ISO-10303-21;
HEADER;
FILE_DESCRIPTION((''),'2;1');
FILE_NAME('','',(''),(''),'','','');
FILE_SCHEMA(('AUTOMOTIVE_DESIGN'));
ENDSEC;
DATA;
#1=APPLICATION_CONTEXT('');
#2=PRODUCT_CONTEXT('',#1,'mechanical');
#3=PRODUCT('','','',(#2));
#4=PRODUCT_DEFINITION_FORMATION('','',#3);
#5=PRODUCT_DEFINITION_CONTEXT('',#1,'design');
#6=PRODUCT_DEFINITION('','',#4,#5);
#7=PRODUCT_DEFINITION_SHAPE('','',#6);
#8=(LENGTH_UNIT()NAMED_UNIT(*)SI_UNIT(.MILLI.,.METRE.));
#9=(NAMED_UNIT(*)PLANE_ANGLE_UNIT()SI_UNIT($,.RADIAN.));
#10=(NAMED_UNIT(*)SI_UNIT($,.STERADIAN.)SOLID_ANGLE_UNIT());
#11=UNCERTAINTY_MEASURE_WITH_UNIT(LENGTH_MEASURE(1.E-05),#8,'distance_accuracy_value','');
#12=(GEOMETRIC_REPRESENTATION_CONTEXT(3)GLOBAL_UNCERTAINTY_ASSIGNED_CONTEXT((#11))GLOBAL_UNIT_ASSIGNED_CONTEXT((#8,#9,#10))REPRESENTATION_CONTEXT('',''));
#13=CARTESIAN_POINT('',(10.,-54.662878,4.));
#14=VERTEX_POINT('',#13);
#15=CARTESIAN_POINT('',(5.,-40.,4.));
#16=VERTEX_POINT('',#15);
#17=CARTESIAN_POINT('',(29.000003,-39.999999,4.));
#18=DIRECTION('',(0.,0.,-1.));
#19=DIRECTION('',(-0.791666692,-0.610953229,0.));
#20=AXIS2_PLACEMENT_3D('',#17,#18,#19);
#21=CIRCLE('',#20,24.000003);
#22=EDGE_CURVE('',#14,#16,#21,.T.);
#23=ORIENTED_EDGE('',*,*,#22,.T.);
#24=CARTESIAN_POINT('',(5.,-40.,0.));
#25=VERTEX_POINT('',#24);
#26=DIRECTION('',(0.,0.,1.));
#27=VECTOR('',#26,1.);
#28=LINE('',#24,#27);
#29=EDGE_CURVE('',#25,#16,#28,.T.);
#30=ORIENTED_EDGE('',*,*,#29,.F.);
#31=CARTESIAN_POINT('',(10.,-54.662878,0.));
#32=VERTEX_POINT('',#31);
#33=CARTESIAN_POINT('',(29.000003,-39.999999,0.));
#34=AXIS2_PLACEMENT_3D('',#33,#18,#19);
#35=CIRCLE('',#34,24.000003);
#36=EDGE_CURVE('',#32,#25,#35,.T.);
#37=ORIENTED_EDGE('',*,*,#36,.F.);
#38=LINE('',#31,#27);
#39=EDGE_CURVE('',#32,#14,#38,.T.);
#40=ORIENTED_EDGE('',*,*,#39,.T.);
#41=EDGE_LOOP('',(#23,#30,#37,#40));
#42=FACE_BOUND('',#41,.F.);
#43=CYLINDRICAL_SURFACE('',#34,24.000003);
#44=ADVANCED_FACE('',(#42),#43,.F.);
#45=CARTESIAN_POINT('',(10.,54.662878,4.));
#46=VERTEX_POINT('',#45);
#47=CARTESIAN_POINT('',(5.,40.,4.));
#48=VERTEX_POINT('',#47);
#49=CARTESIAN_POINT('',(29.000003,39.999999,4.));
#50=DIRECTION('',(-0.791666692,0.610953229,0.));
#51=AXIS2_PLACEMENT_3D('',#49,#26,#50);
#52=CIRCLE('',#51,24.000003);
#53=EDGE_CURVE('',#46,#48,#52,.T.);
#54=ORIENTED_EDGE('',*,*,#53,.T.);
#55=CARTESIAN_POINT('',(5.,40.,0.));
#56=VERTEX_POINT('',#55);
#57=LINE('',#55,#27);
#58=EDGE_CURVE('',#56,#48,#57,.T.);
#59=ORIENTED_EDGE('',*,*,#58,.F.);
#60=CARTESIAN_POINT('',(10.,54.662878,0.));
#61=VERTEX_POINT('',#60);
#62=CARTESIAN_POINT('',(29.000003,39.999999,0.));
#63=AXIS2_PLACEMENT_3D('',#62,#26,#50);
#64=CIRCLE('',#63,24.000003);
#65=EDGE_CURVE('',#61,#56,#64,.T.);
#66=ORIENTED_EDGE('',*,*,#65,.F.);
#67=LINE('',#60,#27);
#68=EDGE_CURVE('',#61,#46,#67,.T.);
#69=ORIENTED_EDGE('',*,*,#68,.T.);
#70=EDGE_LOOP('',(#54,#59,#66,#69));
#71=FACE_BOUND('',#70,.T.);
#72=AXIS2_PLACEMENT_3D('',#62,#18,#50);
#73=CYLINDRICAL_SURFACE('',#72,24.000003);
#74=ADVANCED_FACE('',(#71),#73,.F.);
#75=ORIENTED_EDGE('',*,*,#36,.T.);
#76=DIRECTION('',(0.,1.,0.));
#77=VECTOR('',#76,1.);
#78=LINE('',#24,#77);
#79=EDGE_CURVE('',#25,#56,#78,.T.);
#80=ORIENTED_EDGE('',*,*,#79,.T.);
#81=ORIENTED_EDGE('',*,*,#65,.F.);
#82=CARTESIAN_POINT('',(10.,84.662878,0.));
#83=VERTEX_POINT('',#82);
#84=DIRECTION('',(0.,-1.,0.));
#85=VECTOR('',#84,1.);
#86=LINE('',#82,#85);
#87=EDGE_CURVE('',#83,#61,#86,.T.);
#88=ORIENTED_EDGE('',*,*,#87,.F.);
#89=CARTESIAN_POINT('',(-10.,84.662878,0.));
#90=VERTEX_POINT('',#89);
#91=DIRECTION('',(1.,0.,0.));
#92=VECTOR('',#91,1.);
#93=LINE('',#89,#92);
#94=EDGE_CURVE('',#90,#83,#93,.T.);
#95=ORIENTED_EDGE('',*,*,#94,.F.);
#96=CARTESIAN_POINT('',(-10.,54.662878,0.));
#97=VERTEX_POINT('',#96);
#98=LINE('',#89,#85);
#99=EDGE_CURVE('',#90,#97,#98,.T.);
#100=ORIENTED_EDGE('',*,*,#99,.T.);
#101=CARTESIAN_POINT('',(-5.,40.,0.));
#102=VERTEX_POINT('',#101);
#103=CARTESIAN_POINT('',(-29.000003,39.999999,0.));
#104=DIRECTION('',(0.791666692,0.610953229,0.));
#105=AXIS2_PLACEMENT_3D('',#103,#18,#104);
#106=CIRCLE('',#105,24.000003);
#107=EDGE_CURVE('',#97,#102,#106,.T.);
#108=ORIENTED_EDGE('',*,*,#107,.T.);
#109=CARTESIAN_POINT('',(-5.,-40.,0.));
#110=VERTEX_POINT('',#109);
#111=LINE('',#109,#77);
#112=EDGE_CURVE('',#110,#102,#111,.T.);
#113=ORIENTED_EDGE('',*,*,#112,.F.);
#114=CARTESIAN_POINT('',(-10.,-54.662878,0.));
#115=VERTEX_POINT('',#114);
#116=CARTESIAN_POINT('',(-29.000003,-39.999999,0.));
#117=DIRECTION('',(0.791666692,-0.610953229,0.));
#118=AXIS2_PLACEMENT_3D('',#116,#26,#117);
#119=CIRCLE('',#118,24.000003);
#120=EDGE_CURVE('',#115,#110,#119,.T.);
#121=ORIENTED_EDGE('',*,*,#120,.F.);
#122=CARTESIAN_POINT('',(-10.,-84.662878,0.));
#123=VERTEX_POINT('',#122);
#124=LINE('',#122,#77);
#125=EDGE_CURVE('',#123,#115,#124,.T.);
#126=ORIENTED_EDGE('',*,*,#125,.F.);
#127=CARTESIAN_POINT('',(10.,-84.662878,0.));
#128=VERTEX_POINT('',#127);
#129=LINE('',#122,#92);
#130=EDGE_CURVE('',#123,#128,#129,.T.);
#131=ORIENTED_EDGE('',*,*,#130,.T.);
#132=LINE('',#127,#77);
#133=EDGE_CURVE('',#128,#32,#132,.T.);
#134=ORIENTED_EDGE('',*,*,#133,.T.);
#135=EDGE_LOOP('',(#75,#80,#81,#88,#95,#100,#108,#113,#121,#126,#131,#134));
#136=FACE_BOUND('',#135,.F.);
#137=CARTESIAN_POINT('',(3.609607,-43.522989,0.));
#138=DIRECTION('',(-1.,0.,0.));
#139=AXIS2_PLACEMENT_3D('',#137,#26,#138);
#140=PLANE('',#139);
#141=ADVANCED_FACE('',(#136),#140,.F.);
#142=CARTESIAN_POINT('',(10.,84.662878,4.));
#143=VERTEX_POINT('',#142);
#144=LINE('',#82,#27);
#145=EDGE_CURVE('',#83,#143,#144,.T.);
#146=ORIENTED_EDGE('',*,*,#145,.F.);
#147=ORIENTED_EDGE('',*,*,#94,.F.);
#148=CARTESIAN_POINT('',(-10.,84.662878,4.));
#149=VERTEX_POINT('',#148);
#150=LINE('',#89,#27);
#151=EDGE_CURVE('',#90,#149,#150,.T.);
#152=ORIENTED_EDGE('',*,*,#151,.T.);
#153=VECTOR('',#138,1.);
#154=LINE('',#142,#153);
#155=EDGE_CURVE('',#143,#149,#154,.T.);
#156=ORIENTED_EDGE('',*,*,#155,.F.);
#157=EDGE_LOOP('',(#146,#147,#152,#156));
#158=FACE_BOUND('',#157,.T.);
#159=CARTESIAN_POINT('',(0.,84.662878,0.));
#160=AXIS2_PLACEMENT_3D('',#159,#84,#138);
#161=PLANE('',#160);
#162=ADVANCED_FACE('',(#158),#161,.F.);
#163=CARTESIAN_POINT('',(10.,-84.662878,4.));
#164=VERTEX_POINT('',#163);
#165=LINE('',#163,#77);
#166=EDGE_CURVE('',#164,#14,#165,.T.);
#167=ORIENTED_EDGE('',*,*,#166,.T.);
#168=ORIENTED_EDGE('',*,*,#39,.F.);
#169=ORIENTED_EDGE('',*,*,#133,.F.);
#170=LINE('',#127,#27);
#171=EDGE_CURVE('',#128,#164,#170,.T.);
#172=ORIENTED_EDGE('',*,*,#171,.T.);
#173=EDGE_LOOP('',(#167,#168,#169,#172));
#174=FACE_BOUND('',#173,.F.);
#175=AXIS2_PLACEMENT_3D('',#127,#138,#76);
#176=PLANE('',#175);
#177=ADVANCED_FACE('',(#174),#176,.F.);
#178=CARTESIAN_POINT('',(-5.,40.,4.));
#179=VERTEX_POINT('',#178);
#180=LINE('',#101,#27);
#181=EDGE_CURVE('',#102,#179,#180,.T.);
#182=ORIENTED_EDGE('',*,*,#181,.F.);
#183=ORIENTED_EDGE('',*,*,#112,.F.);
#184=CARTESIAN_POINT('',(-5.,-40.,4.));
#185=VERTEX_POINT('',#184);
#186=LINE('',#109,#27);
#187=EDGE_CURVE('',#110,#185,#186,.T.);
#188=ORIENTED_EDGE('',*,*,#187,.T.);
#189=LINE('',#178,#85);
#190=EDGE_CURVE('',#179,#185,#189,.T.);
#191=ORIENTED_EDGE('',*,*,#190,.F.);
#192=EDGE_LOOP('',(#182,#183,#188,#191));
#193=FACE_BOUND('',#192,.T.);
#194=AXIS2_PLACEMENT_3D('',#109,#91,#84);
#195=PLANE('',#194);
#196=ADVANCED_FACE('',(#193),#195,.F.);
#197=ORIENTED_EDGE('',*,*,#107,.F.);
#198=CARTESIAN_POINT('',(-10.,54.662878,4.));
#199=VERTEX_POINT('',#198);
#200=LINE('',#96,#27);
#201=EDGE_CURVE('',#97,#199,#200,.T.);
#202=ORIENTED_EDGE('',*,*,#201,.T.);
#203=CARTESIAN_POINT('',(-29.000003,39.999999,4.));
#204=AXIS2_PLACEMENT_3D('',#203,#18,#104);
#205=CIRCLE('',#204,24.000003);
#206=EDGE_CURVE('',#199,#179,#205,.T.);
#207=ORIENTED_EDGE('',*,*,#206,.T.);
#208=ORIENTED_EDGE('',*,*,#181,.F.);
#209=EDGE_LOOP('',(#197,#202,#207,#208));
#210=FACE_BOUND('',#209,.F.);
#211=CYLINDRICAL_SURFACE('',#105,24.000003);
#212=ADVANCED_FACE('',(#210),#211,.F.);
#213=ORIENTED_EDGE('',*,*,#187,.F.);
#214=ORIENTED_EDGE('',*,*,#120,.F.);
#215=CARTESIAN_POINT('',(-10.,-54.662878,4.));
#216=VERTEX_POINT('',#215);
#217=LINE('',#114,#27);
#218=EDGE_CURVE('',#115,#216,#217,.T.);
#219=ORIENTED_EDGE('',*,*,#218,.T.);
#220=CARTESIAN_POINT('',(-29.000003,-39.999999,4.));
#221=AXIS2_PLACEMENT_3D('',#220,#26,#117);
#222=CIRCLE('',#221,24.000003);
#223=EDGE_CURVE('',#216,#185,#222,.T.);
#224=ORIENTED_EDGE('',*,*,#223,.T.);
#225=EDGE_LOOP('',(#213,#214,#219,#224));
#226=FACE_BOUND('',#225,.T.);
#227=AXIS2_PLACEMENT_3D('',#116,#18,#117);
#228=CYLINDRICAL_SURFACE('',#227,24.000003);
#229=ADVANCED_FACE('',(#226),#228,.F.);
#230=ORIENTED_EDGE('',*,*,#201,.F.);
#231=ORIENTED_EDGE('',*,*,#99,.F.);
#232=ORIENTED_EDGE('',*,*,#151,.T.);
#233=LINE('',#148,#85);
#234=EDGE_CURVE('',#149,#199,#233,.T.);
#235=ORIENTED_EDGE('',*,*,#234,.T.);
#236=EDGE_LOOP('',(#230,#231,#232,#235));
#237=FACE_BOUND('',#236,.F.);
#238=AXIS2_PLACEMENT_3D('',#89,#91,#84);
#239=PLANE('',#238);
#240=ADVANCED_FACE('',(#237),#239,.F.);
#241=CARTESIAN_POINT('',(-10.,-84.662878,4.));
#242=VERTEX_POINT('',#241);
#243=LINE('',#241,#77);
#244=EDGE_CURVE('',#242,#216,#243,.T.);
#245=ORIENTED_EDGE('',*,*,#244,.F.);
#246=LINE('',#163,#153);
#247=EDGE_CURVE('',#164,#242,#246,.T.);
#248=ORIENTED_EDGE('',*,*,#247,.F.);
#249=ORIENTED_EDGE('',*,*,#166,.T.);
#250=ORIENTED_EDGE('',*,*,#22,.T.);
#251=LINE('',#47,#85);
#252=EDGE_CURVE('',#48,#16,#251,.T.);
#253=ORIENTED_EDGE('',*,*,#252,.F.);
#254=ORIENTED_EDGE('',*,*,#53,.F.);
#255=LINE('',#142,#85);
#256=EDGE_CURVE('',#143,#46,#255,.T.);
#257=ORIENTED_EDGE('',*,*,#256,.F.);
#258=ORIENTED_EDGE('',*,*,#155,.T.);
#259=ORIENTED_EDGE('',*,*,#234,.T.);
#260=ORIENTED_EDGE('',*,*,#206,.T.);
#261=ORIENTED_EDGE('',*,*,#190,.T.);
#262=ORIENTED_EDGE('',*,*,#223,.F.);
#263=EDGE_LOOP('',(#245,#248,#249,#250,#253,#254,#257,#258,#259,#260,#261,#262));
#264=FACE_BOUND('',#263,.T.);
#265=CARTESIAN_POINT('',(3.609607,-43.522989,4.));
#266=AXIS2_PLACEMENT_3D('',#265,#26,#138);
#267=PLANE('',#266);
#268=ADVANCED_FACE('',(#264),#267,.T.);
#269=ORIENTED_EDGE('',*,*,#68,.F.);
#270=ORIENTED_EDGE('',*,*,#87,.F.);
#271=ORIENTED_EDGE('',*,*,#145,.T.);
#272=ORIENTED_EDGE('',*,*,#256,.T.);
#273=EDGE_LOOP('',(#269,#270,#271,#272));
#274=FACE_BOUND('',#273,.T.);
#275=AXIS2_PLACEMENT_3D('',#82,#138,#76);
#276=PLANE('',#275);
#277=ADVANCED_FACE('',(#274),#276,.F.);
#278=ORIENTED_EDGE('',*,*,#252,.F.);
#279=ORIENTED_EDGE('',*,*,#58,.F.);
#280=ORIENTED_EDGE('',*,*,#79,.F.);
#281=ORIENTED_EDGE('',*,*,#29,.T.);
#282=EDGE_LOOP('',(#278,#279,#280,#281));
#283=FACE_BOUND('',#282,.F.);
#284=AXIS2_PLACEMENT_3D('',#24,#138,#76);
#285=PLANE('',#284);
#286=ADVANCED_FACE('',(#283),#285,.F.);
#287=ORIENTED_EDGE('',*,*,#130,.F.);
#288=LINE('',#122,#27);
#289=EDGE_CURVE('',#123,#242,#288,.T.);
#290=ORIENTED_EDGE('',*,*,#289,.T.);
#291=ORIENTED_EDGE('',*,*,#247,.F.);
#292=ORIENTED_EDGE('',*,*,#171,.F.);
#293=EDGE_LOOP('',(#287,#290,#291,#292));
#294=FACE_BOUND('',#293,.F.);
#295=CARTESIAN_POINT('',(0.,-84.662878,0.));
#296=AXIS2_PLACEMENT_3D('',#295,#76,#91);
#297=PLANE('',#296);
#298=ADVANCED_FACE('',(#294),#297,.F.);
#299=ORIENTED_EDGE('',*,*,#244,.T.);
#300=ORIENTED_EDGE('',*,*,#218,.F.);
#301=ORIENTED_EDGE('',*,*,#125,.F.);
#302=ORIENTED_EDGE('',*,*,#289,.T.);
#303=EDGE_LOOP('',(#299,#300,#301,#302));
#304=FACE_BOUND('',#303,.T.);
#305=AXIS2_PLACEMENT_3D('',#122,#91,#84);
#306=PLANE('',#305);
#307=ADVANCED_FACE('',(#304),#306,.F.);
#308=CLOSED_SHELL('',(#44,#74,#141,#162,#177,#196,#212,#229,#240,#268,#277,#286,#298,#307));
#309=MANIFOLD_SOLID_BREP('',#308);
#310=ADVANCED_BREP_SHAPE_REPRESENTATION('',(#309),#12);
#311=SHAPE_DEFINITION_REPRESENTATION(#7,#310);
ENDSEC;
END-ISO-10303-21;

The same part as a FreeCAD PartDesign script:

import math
import FreeCAD as App
import Part
import Sketcher
from FreeCAD import Vector

doc = App.newDocument("Part")
body = doc.addObject("PartDesign::Body", "Body")

# Sketch on XY plane
sketch1 = body.newObject("Sketcher::SketchObject", "Sketch")
sketch1.AttachmentSupport = (doc.getObject("XY_Plane"), [""])
sketch1.MapMode = "FlatFace"
sketch1.addGeometry(Part.LineSegment(Vector(-5, 40, 0), Vector(-5, 0, 0)), False)
sketch1.addGeometry(Part.LineSegment(Vector(-5, 0, 0), Vector(0, 0, 0)), False)
sketch1.addGeometry(Part.LineSegment(Vector(0, 0, 0), Vector(0, 85, 0)), False)
sketch1.addGeometry(Part.LineSegment(Vector(0, 85, 0), Vector(-10, 85, 0)), False)
sketch1.addGeometry(Part.LineSegment(Vector(-10, 85, 0), Vector(-10, 55, 0)), False)
sketch1.addGeometry(Part.ArcOfCircle(Part.Circle(Vector(-29, 40, 0), Vector(0, 0, 1), 24), math.radians(0), math.radians(38)), False)
sketch1.addConstraint(Sketcher.Constraint("Coincident", 0, 2, 1, 1))
sketch1.addConstraint(Sketcher.Constraint("Coincident", 1, 2, 2, 1))
sketch1.addConstraint(Sketcher.Constraint("Coincident", 2, 2, 3, 1))
sketch1.addConstraint(Sketcher.Constraint("Coincident", 3, 2, 4, 1))
sketch1.addConstraint(Sketcher.Constraint("Coincident", 4, 2, 5, 2))
sketch1.addConstraint(Sketcher.Constraint("Tangent", 5, 1, 0, 1))
sketch1.addConstraint(Sketcher.Constraint("Vertical", 0))
sketch1.addConstraint(Sketcher.Constraint("Horizontal", 1))
sketch1.addConstraint(Sketcher.Constraint("Vertical", 2))
sketch1.addConstraint(Sketcher.Constraint("Horizontal", 3))
sketch1.addConstraint(Sketcher.Constraint("Vertical", 4))
sketch1.addConstraint(Sketcher.Constraint("Coincident", 1, 2, -1, 1))
sketch1.addConstraint(Sketcher.Constraint("DistanceX", 1, 1, 1, 2, 5.0))
sketch1.addConstraint(Sketcher.Constraint("DistanceX", 3, 2, 3, 1, 10.0))
sketch1.addConstraint(Sketcher.Constraint("DistanceY", 0, 2, 0, 1, 40.0))
sketch1.addConstraint(Sketcher.Constraint("DistanceY", 4, 2, 4, 1, 30.0))
sketch1.addConstraint(Sketcher.Constraint("Radius", 5, 24.000003))
pad1 = body.newObject("PartDesign::Pad", "Pad")
pad1.Profile = sketch1
pad1.Length = 4
body2 = doc.addObject("PartDesign::Body", "Body001")
doc.recompute()

body2.BaseFeature = body
doc.recompute()

mirroring = doc.addObject("Part::Mirroring", "Mirroring")
mirroring.Source = body
mirroring.Base = Vector(0, 42.331439, 2)
mirroring.Normal = Vector(1, 0, 0)
body3 = doc.addObject("PartDesign::Body", "Body002")
body3.BaseFeature = mirroring
boolean = body2.newObject("PartDesign::Boolean", "Boolean")
boolean.Type = "Fuse"
boolean.addObjects([body3])
doc.recompute()
body4 = doc.addObject("PartDesign::Body", "Body003")
doc.recompute()

body4.BaseFeature = body2
doc.recompute()

mirroring2 = doc.addObject("Part::Mirroring", "Mirroring001")
mirroring2.Source = body2
mirroring2.Base = Vector(0, 0, 2)
mirroring2.Normal = Vector(0, -1, 0)
body5 = doc.addObject("PartDesign::Body", "Body004")
body5.BaseFeature = mirroring2
boolean2 = body4.newObject("PartDesign::Boolean", "Boolean001")
boolean2.Type = "Fuse"
boolean2.addObjects([body5])
doc.recompute()
mirroring.Visibility = False
mirroring2.Visibility = False

doc.recompute()
